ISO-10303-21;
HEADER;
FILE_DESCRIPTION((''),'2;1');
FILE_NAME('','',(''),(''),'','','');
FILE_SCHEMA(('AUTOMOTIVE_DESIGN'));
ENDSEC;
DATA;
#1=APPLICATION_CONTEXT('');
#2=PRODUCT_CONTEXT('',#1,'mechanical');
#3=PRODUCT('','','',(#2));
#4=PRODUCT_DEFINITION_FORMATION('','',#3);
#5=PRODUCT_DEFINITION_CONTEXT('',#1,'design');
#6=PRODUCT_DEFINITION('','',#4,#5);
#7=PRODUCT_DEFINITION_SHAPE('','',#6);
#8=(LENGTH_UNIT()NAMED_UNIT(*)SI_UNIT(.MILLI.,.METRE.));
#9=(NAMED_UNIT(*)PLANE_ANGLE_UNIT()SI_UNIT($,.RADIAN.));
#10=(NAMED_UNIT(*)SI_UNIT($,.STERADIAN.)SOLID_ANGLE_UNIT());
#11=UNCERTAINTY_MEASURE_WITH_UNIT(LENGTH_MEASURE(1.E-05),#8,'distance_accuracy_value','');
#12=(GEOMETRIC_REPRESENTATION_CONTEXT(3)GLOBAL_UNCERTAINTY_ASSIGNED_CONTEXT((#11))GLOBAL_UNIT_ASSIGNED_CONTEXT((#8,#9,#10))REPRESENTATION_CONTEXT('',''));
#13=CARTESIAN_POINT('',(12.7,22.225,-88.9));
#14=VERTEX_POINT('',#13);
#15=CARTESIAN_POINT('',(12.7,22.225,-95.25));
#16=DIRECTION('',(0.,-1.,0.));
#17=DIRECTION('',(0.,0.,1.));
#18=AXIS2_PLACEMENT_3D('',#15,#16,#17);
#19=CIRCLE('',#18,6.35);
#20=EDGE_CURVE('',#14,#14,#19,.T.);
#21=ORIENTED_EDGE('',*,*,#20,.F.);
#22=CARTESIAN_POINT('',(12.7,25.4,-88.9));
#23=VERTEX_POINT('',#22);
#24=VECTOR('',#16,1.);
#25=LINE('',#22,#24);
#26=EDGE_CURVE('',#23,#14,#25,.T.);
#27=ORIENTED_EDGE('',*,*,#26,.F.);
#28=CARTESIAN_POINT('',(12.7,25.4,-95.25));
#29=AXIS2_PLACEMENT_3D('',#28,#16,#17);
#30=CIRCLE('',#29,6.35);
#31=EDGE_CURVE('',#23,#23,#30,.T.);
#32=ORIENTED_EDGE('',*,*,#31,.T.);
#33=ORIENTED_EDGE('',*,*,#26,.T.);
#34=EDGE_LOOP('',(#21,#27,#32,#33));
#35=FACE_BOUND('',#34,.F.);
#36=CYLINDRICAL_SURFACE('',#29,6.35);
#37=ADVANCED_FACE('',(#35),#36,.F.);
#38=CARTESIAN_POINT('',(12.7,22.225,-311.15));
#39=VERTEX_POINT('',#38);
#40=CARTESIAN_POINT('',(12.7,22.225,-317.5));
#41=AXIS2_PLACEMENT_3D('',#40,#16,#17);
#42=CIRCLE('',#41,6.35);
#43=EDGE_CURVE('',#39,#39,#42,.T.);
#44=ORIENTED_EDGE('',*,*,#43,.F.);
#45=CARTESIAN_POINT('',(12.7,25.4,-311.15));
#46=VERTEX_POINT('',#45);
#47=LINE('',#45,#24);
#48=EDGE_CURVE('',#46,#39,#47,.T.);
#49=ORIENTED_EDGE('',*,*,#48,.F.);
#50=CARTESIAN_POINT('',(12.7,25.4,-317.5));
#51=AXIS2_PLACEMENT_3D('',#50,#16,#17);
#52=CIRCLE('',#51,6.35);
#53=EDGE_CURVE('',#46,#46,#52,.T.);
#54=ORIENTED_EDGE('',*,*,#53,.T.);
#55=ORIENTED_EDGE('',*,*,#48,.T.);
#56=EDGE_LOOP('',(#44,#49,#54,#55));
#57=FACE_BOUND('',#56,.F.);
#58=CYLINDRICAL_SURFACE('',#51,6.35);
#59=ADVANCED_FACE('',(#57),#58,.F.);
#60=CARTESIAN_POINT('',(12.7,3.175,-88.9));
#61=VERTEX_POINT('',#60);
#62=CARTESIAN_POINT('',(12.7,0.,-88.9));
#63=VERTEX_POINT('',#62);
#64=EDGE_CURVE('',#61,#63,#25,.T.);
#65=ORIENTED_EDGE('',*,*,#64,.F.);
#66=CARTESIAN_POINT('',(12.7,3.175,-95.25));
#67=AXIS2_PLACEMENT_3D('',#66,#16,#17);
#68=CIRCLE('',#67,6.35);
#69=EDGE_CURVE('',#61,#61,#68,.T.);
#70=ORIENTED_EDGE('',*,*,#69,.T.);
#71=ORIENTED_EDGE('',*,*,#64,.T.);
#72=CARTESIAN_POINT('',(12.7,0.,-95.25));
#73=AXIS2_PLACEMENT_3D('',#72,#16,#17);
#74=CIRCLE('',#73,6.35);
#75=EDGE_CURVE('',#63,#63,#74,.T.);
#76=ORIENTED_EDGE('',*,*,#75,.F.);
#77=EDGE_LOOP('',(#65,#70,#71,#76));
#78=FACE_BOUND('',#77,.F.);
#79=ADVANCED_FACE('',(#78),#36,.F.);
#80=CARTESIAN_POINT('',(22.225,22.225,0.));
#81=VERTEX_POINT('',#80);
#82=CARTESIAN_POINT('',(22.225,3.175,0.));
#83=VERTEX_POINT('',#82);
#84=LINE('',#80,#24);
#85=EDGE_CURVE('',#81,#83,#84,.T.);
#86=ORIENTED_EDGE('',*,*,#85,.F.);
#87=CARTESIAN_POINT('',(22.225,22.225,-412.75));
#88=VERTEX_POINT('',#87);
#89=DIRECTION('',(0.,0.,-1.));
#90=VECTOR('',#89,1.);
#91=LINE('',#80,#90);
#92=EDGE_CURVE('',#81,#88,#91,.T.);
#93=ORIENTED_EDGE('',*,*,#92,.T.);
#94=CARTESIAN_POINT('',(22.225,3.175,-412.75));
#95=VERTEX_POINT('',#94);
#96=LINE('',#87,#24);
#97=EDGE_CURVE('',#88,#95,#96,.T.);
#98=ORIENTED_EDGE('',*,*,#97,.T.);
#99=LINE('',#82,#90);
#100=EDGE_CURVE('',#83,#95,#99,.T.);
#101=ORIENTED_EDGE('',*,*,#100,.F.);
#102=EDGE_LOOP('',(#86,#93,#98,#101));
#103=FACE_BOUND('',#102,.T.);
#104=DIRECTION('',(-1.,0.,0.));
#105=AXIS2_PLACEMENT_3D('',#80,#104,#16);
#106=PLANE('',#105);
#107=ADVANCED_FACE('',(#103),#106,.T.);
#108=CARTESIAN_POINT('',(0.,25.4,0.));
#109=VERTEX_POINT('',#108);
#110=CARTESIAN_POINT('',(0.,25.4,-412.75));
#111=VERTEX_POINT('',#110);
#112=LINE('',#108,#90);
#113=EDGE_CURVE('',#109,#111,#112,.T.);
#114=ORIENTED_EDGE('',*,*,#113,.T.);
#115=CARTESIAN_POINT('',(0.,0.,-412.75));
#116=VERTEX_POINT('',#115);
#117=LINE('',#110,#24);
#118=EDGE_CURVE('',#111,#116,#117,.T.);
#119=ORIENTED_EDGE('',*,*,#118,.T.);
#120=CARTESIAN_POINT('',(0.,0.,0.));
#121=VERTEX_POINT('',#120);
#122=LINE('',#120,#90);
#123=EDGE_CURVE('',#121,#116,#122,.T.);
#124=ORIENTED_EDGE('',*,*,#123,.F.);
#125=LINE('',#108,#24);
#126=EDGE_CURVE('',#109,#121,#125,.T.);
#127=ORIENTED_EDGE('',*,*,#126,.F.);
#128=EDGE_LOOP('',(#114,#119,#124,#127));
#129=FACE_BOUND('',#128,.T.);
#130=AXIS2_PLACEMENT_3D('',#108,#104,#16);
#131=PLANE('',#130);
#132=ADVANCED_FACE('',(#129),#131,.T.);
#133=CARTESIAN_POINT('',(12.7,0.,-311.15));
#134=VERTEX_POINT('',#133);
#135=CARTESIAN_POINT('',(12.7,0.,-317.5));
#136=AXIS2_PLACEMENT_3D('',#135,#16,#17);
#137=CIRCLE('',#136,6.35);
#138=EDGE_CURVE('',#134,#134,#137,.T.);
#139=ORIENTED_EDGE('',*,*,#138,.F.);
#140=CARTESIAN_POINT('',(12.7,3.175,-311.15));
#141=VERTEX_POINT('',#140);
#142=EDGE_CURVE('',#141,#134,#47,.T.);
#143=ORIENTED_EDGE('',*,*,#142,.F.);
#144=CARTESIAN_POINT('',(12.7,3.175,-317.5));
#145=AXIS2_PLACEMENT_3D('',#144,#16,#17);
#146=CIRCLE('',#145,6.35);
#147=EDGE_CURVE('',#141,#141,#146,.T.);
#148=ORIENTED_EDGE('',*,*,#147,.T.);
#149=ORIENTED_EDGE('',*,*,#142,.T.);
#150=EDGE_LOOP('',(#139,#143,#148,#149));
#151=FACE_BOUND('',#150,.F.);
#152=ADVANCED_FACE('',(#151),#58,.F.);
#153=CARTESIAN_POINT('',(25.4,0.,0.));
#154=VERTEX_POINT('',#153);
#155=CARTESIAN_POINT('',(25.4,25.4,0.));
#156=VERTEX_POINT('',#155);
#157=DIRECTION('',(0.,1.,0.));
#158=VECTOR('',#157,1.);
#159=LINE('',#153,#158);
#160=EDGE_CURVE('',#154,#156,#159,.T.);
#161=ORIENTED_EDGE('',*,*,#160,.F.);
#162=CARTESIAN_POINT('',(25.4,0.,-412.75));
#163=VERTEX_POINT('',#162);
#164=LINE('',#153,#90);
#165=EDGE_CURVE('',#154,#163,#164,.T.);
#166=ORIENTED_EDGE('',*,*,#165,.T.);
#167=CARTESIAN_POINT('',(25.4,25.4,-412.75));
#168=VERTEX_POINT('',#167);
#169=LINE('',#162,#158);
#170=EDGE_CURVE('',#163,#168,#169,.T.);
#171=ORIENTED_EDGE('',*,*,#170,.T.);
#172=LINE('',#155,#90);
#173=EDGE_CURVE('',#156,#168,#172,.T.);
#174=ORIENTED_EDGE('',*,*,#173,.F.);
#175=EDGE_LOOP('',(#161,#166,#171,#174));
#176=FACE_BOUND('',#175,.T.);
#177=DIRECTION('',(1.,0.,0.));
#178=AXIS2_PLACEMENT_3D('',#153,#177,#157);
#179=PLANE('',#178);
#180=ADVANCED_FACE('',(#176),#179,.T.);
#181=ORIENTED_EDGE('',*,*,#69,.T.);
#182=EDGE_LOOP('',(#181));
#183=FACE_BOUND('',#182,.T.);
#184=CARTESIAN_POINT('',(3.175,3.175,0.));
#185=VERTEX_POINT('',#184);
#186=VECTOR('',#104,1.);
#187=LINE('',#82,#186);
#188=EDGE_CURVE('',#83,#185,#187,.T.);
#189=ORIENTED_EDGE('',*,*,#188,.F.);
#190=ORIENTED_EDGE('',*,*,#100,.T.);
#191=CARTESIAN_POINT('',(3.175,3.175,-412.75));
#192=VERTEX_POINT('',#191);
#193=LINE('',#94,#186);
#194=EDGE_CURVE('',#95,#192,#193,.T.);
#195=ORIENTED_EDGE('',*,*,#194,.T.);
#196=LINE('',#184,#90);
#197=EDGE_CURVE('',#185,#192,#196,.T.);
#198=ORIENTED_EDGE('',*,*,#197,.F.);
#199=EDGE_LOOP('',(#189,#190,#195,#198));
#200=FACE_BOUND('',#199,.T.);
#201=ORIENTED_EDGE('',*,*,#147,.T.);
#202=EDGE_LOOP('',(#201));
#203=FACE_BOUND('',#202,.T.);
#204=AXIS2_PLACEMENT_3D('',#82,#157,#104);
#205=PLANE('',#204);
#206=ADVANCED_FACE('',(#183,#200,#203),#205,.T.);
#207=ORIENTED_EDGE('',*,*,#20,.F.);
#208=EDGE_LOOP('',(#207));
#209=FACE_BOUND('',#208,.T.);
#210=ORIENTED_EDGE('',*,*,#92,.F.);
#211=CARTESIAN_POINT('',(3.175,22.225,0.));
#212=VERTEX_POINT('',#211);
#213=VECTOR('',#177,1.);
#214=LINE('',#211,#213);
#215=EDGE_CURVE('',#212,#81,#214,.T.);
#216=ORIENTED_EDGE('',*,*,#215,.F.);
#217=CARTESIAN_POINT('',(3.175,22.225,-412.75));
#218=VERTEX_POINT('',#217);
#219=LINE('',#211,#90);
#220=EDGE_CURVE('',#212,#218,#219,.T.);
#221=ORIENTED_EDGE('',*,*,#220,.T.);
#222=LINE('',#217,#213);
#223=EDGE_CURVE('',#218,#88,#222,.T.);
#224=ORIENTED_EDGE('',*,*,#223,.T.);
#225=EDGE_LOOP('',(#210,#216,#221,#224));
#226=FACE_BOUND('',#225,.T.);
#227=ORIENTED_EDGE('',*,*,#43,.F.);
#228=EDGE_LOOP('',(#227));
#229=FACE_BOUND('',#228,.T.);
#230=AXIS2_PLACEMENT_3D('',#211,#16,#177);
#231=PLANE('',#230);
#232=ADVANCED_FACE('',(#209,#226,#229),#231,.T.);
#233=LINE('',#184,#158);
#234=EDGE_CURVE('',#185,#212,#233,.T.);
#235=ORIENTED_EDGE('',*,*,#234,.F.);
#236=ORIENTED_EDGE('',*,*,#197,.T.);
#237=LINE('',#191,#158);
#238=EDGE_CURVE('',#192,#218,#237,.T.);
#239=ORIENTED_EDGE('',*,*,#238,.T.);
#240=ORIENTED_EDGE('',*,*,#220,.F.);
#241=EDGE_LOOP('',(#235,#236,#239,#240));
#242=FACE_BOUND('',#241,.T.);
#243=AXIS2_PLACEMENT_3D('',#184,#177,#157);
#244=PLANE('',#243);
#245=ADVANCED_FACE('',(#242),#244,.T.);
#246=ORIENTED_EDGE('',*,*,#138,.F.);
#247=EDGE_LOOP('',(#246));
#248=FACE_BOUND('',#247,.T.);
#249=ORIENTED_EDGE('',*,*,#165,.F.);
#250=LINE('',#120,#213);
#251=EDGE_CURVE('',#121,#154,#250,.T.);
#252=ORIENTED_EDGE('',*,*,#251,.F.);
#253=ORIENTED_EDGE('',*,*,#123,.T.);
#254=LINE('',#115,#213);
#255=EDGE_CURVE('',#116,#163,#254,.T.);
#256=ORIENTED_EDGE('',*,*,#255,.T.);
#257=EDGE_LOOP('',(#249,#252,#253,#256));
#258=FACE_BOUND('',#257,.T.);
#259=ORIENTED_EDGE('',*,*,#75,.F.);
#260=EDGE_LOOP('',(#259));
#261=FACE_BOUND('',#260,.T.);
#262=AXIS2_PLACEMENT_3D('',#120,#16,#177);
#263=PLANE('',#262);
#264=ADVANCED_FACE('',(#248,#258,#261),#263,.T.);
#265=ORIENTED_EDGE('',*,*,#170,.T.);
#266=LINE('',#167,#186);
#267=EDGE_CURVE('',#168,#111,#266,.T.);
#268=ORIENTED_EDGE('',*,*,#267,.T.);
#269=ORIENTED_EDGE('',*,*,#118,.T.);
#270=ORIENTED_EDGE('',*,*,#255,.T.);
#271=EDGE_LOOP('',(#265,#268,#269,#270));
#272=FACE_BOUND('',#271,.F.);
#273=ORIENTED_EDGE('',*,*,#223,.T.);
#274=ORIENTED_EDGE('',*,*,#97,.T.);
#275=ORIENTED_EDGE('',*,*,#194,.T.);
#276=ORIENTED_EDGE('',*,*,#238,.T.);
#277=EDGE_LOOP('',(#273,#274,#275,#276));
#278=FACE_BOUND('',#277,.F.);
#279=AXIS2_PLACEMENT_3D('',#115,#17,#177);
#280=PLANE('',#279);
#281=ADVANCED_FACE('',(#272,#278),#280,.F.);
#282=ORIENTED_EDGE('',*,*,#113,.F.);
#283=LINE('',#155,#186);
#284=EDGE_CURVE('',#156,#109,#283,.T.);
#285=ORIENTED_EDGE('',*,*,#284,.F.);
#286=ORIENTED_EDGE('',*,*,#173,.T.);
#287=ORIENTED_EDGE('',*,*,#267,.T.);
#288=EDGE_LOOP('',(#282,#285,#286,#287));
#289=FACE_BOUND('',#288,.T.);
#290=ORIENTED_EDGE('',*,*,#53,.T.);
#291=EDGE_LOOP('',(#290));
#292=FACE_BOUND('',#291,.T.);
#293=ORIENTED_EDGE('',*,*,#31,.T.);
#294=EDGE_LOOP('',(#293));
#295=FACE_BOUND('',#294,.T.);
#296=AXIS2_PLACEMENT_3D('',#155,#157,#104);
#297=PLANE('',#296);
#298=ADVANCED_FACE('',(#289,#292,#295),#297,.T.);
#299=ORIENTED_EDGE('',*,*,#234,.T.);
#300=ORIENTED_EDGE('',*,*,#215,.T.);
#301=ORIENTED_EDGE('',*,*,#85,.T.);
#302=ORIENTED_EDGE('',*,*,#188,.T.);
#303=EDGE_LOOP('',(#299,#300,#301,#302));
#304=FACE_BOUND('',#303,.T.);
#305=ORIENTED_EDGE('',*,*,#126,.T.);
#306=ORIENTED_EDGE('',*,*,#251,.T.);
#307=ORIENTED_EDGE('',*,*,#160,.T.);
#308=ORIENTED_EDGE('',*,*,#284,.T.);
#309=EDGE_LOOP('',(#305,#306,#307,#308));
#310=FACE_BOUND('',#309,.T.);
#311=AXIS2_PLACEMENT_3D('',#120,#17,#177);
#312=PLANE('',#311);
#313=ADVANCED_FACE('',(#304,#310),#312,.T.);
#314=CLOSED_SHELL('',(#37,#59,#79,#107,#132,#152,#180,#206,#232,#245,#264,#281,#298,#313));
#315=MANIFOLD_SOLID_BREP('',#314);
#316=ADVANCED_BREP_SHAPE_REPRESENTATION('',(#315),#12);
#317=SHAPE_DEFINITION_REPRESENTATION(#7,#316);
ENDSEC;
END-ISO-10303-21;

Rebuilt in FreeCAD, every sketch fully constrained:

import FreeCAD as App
import Part
import Sketcher
from FreeCAD import Vector
Q = App.Units.Quantity


def add_polygon(sketch, points):
    """Adds a closed chain of lines whose ends are joined by coincident constraints."""
    first, n = sketch.GeometryCount, len(points)
    for a, b in zip(points, points[1:] + points[:1]):
        sketch.addGeometry(Part.LineSegment(App.Vector(*a, 0), App.Vector(*b, 0)), False)
    for i in range(n):
        sketch.addConstraint(Sketcher.Constraint("Coincident", first + i, 2, first + (i + 1) % n, 1))

doc = App.newDocument("Part")
params = doc.addObject("Spreadsheet::Sheet", "Params")
for row, (alias, value) in enumerate([
    ("sketch1_width", "1 in"),
    ("pad1_length", "16.25 in"),
    ("sketch2_diameter", "0.5 in"),
    ("hole_diameter", "0.5 in"),
    ("hole_depth", "1 in"),
], start=1):
    params.set(f"A{row}", alias)
    params.set(f"B{row}", "=" + value)
    params.setAlias(f"B{row}", alias)

body = doc.addObject("PartDesign::Body", "Body")

sketch1 = doc.addObject("Sketcher::SketchObject", "Sketch")
body.addObject(sketch1)
sketch1.AttachmentSupport = (doc.XY_Plane, [""])
sketch1.MapMode = "FlatFace"
add_polygon(sketch1, [(0, 25), (0, 0), (25, 0), (25, 25)])
add_polygon(sketch1, [(3, 3), (3, 22), (22, 22), (22, 3)])
sketch1.addConstraint([
    Sketcher.Constraint("Vertical", 0),
    Sketcher.Constraint("Horizontal", 1),
    Sketcher.Constraint("Vertical", 2),
    Sketcher.Constraint("Horizontal", 3),
    Sketcher.Constraint("Vertical", 4),
    Sketcher.Constraint("Horizontal", 5),
    Sketcher.Constraint("Vertical", 6),
    Sketcher.Constraint("Horizontal", 7),
    Sketcher.Constraint("Coincident", 0, 2, -1, 1),
    Sketcher.Constraint("Equal", 3, 0),
    Sketcher.Constraint("Equal", 7, 4),
    Sketcher.Constraint("DistanceX", 1, 1, 1, 2, Q("1 in")),
    Sketcher.Constraint("DistanceX", -1, 1, 4, 2, Q("0.125 in")),
    Sketcher.Constraint("DistanceY", -1, 1, 6, 2, Q("0.125 in")),
    Sketcher.Constraint("DistanceY", 4, 2, 3, 2, Q("0.125 in")),
])
sketch1.setExpression("Constraints[19]", "Params.sketch1_width")
pad1 = doc.addObject("PartDesign::Pad", "Pad")
body.addObject(pad1)
pad1.Profile = sketch1
pad1.setExpression("Length", "Params.pad1_length")
pad1.Reversed = True

sketch2 = doc.addObject("Sketcher::SketchObject", "Sketch001")
body.addObject(sketch2)
sketch2.AttachmentSupport = (doc.XZ_Plane, [""])
sketch2.MapMode = "FlatFace"
sketch2.AttachmentOffset = App.Placement(Vector(0, 0, -1 * 25.4), App.Rotation())
sketch2.addGeometry([
    Part.Circle(Vector(13, -95, 0), Vector(0, 0, 1), 6),
    Part.Circle(Vector(13, -318, 0), Vector(0, 0, 1), 6),
], False)
sketch2.addConstraint([
    Sketcher.Constraint("Equal", 0, 1),
    Sketcher.Constraint("Vertical", 0, 3, 1, 3),
    Sketcher.Constraint("Diameter", 0, Q("0.5 in")),
    Sketcher.Constraint("DistanceX", -1, 1, 0, 3, Q("0.5 in")),
    Sketcher.Constraint("DistanceY", 1, 3, -1, 1, Q("12.5 in")),
    Sketcher.Constraint("DistanceY", 0, 3, -1, 1, Q("3.75 in")),
])
sketch2.setExpression("Constraints[2]", "Params.sketch2_diameter")
doc.recompute()
hole = doc.addObject("PartDesign::Hole", "Hole")
body.addObject(hole)
hole.Profile = sketch2
hole.ThreadType = "None"
hole.setExpression("Diameter", "Params.hole_diameter")
hole.DepthType = "Dimension"
hole.setExpression("Depth", "Params.hole_depth")
hole.DrillPoint = "Angled"
hole.DrillPointAngle = 118
hole.Reversed = True

doc.recompute()
